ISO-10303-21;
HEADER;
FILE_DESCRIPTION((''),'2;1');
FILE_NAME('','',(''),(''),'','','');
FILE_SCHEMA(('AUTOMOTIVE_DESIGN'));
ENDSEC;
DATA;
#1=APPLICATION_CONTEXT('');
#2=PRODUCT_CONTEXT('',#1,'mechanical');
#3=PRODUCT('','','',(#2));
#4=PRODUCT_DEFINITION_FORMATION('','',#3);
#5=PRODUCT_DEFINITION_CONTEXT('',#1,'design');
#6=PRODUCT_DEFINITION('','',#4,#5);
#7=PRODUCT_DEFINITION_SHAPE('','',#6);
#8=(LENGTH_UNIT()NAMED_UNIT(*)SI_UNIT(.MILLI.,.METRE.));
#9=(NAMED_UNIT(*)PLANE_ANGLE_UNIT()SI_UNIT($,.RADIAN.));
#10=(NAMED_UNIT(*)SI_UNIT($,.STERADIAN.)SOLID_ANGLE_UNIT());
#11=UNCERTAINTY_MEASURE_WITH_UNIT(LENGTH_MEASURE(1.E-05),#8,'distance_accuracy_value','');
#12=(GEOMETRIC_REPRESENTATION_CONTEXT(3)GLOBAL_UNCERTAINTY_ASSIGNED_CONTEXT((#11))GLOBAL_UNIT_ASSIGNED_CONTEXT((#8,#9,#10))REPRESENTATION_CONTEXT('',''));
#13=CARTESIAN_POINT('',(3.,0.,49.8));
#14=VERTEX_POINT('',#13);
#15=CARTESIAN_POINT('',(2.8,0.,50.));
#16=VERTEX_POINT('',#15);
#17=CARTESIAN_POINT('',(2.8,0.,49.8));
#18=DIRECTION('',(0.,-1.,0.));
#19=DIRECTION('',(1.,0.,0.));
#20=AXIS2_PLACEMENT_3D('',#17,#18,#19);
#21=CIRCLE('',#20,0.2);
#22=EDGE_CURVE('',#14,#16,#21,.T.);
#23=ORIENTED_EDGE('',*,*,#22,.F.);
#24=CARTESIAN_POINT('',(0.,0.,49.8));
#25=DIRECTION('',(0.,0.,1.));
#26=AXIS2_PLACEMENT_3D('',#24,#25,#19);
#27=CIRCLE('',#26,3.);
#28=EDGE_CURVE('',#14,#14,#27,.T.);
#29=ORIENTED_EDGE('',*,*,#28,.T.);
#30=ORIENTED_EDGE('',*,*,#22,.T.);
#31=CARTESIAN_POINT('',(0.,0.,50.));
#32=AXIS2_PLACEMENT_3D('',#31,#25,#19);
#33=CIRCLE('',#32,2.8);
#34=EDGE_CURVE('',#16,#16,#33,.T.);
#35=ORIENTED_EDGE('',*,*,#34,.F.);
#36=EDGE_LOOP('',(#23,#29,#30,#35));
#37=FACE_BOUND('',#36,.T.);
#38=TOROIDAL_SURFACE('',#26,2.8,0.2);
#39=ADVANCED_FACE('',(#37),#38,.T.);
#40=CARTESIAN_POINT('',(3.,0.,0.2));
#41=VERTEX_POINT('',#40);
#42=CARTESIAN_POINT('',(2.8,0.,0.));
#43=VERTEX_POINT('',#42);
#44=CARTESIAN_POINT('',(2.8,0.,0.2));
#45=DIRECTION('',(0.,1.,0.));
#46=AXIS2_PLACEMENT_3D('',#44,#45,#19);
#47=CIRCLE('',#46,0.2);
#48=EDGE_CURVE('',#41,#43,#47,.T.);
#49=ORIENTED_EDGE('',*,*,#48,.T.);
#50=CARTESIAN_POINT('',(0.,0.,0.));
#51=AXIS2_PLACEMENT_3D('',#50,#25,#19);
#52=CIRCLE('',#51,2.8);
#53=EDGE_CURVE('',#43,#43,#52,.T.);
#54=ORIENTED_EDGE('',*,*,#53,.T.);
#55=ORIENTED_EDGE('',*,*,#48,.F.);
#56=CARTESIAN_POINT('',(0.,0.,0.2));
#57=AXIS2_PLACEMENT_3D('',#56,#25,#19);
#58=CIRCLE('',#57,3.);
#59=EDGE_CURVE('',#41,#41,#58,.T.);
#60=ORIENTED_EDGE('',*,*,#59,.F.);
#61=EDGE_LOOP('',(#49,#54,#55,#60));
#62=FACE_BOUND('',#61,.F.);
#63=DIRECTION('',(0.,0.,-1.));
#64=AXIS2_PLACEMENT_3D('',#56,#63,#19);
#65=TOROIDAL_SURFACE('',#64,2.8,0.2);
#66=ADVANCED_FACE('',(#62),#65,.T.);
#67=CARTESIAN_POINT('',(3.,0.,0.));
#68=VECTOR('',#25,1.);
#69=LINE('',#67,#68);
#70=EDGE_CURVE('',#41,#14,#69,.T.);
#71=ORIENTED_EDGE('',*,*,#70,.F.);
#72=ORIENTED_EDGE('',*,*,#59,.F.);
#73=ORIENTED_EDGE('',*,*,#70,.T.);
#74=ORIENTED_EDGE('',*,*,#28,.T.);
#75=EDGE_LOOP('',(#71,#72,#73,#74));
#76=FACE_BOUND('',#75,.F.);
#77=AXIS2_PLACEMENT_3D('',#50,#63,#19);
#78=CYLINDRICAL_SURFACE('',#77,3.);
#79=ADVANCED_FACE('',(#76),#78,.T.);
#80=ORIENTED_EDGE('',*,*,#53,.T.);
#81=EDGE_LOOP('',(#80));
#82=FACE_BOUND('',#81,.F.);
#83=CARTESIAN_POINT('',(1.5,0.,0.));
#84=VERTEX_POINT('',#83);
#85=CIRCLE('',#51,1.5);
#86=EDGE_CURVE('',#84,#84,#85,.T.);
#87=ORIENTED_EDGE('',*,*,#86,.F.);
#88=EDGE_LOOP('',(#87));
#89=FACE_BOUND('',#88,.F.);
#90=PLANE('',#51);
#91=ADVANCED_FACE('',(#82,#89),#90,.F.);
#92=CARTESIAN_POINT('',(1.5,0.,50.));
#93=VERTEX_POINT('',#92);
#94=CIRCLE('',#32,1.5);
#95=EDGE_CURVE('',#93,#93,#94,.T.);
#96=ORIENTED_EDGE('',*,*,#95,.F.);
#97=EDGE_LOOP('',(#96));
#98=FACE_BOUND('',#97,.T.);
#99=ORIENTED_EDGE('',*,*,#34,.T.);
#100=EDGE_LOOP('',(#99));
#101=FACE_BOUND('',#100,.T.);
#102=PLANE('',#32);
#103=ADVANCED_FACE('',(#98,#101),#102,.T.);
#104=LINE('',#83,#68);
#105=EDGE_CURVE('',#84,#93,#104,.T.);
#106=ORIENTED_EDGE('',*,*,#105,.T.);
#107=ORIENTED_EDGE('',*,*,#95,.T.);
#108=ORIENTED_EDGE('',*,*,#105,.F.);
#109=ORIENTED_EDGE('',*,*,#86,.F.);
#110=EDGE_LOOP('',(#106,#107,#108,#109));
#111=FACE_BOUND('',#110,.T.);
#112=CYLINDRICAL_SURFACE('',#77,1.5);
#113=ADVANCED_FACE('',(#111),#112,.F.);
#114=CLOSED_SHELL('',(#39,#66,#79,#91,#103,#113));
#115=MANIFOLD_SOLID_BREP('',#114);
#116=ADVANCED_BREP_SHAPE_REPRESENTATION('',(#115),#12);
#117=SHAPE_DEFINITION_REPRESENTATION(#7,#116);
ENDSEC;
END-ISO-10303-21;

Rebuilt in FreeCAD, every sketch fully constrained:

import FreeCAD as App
import Part
import Sketcher


def edges_at(feature, points):
    """Names of the edges that pass closest to the given points."""
    edges = feature.Shape.Edges
    near = lambda p: min(range(len(edges)), key=lambda i: edges[i].distToShape(Part.Vertex(*p))[0])
    return sorted({f"Edge{near(p) + 1}" for p in points})

doc = App.newDocument("Part")
body = doc.addObject("PartDesign::Body", "Body")

sketch1 = body.newObject("Sketcher::SketchObject", "Sketch")
sketch1.AttachmentSupport = (doc.getObject("XY_Plane"), [""])
sketch1.MapMode = "FlatFace"
sketch1.addGeometry([
    Part.Circle(App.Vector(0, 0, 0), App.Vector(0, 0, 1), 3),
    Part.Circle(App.Vector(0, 0, 0), App.Vector(0, 0, 1), 1.5),
], False)
sketch1.addConstraint([
    Sketcher.Constraint("Coincident", 0, 3, -1, 1),
    Sketcher.Constraint("Coincident", 1, 3, -1, 1),
    Sketcher.Constraint("Diameter", 0, 6.0),
    Sketcher.Constraint("Diameter", 1, 3.0),
])
pad1 = body.newObject("PartDesign::Pad", "Pad")
pad1.Profile = sketch1
pad1.Length = 50
doc.recompute()

fillet = body.newObject("PartDesign::Fillet", "Fillet")
fillet.Base = (pad1, edges_at(pad1, [(-3, 0, 0), (-3, 0, 50)]))
fillet.Radius = 0.2

doc.recompute()
